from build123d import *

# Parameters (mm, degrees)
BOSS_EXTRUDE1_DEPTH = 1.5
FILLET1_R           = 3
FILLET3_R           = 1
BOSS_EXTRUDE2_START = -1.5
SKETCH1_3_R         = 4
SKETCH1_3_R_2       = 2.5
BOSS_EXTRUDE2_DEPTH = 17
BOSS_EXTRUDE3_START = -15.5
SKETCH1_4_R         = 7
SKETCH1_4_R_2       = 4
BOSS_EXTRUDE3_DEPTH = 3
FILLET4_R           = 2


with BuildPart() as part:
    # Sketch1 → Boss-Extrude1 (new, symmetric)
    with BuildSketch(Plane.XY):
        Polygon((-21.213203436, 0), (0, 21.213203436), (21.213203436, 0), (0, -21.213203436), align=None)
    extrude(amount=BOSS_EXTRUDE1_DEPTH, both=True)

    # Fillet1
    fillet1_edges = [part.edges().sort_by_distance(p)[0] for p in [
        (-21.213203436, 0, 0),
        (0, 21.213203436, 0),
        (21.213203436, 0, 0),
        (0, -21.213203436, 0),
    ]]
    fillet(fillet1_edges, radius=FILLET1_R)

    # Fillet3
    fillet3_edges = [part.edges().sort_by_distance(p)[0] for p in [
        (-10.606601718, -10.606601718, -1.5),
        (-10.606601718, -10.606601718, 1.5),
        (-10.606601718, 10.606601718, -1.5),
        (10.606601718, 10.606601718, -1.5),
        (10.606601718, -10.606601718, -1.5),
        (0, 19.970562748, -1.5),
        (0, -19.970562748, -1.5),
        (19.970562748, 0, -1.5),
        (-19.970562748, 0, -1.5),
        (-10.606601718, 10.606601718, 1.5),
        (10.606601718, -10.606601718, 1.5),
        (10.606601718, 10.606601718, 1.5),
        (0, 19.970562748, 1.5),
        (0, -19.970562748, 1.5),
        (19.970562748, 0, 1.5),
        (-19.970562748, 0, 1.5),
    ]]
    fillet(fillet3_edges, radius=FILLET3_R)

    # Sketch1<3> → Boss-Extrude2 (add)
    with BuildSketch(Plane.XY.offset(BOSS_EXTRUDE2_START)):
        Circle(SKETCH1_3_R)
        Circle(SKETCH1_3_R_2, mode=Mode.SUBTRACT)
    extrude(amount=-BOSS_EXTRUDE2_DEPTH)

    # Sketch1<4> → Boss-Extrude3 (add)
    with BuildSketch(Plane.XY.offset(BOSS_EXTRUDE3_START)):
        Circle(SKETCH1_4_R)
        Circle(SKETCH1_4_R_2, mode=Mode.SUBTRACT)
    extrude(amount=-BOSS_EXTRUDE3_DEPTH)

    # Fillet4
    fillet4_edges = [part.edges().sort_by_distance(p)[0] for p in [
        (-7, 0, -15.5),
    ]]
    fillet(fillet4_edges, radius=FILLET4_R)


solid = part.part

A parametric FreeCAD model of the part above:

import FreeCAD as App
import Part
import Sketcher


def edges_at(feature, points):
    """Names of the edges that pass closest to the given points."""
    edges = feature.Shape.Edges
    near = lambda p: min(range(len(edges)), key=lambda i: edges[i].distToShape(Part.Vertex(*p))[0])
    return sorted({f"Edge{near(p) + 1}" for p in points})


def add_polygon(sketch, points):
    """Adds a closed chain of lines whose ends are joined by coincident constraints."""
    first, n = sketch.GeometryCount, len(points)
    for a, b in zip(points, points[1:] + points[:1]):
        sketch.addGeometry(Part.LineSegment(App.Vector(*a, 0), App.Vector(*b, 0)), False)
    for i in range(n):
        sketch.addConstraint(Sketcher.Constraint("Coincident", first + i, 2, first + (i + 1) % n, 1))

doc = App.newDocument("Part")
body = doc.addObject("PartDesign::Body", "Body")

sketch1 = body.newObject("Sketcher::SketchObject", "Sketch")
sketch1.AttachmentSupport = (doc.getObject("XY_Plane"), [""])
sketch1.MapMode = "FlatFace"
add_polygon(sketch1, [(0, 21), (-21, 0), (0, -21), (21, 0)])
sketch1.addConstraint([
    Sketcher.Constraint("Symmetric", 0, 2, 2, 2, -1, 1),
    Sketcher.Constraint("Symmetric", 1, 2, 3, 2, -1, 1),
    Sketcher.Constraint("PointOnObject", 0, 2, -1),
    Sketcher.Constraint("PointOnObject", 1, 2, -2),
    Sketcher.Constraint("Perpendicular", 0, 1),
    Sketcher.Constraint("Distance", 0, 30.0),
])
pad1 = body.newObject("PartDesign::Pad", "Pad")
pad1.Profile = sketch1
pad1.Length = 3
pad1.Midplane = True
doc.recompute()

fillet = body.newObject("PartDesign::Fillet", "Fillet")
fillet.Base = (pad1, edges_at(pad1, [
    (-21.213, 0, 0),
    (0, 21.213, 0),
    (21.213, 0, 0),
    (0, -21.213, 0),
]))
fillet.Radius = 3
doc.recompute()

fillet2 = body.newObject("PartDesign::Fillet", "Fillet001")
fillet2.Base = (fillet, edges_at(fillet, [
    (-10.607, -10.607, -1.5),
    (-10.607, -10.607, 1.5),
    (-10.607, 10.607, -1.5),
    (10.607, 10.607, -1.5),
    (10.607, -10.607, -1.5),
    (0, 19.971, -1.5),
    (0, -19.971, -1.5),
    (19.971, 0, -1.5),
    (-19.971, 0, -1.5),
    (-10.607, 10.607, 1.5),
    (10.607, -10.607, 1.5),
    (10.607, 10.607, 1.5),
    (0, 19.971, 1.5),
    (0, -19.971, 1.5),
    (19.971, 0, 1.5),
    (-19.971, 0, 1.5),
]))
fillet2.Radius = 1

sketch2 = body.newObject("Sketcher::SketchObject", "Sketch001")
sketch2.AttachmentSupport = (doc.getObject("XY_Plane"), [""])
sketch2.MapMode = "FlatFace"
sketch2.AttachmentOffset = App.Placement(App.Vector(0, 0, -1.5), App.Rotation())
sketch2.addGeometry([
    Part.Circle(App.Vector(0, 0, 0), App.Vector(0, 0, 1), 4),
    Part.Circle(App.Vector(0, 0, 0), App.Vector(0, 0, 1), 2.5),
], False)
sketch2.addConstraint([
    Sketcher.Constraint("Coincident", 0, 3, -1, 1),
    Sketcher.Constraint("Coincident", 1, 3, -1, 1),
    Sketcher.Constraint("Diameter", 0, 8.0),
    Sketcher.Constraint("Diameter", 1, 5.0),
])
pad2 = body.newObject("PartDesign::Pad", "Pad001")
pad2.Profile = sketch2
pad2.Length = 17
pad2.Reversed = True

sketch3 = body.newObject("Sketcher::SketchObject", "Sketch002")
sketch3.AttachmentSupport = (doc.getObject("XY_Plane"), [""])
sketch3.MapMode = "FlatFace"
sketch3.AttachmentOffset = App.Placement(App.Vector(0, 0, -15.5), App.Rotation())
sketch3.addGeometry([
    Part.Circle(App.Vector(0, 0, 0), App.Vector(0, 0, 1), 7),
    Part.Circle(App.Vector(0, 0, 0), App.Vector(0, 0, 1), 4),
], False)
sketch3.addConstraint([
    Sketcher.Constraint("Coincident", 0, 3, -1, 1),
    Sketcher.Constraint("Coincident", 1, 3, -1, 1),
    Sketcher.Constraint("Diameter", 0, 14.0),
    Sketcher.Constraint("Diameter", 1, 8.0),
])
pad3 = body.newObject("PartDesign::Pad", "Pad002")
pad3.Profile = sketch3
pad3.Length = 3
pad3.Reversed = True
doc.recompute()

fillet3 = body.newObject("PartDesign::Fillet", "Fillet002")
fillet3.Base = (pad3, edges_at(pad3, [(-7, 0, -15.5)]))
fillet3.Radius = 2

doc.recompute()
